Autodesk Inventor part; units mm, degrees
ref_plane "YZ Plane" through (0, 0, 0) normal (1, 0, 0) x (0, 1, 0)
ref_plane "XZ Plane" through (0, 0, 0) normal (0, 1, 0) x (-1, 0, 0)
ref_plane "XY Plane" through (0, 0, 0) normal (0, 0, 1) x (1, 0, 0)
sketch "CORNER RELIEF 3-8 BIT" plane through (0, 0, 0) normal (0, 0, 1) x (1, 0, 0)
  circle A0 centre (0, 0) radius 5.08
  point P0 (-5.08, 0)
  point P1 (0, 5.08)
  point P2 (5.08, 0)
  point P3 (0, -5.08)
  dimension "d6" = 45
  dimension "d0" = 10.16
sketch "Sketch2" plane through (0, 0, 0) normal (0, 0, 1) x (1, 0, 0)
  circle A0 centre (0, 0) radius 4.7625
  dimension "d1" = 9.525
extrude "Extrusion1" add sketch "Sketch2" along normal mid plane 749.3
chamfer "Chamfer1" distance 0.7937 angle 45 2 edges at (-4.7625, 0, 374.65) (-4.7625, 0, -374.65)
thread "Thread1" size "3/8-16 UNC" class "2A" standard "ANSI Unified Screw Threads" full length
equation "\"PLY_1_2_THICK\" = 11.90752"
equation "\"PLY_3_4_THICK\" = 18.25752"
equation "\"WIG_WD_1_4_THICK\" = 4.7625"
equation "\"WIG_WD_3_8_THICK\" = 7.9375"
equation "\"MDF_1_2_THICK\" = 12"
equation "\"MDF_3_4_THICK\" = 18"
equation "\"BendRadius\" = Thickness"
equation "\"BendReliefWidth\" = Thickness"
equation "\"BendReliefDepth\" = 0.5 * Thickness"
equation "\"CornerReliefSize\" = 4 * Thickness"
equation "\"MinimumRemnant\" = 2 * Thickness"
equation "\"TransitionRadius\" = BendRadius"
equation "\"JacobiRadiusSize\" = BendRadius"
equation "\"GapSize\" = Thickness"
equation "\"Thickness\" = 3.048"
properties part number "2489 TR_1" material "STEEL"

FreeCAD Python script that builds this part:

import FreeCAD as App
import Part
import Sketcher
from FreeCAD import Vector
Q = App.Units.Quantity


def edges_at(feature, points):
    """Names of the edges that pass closest to the given points."""
    edges = feature.Shape.Edges
    near = lambda p: min(range(len(edges)), key=lambda i: edges[i].distToShape(Part.Vertex(*p))[0])
    return sorted({f"Edge{near(p) + 1}" for p in points})

doc = App.newDocument("Part")
body = doc.addObject("PartDesign::Body", "Body")

# Sketch on XY plane
sketch1 = body.newObject("Sketcher::SketchObject", "Sketch")
sketch1.AttachmentSupport = (doc.getObject("XY_Plane"), [""])
sketch1.MapMode = "FlatFace"
sketch1.addGeometry(Part.Circle(Vector(0, 0, 0), Vector(0, 0, 1), 4.7625), False)
sketch1.addConstraint(Sketcher.Constraint("Coincident", 0, 3, -1, 1))
sketch1.addConstraint(Sketcher.Constraint("Diameter", 0, Q("0.375 in")))
pad1 = body.newObject("PartDesign::Pad", "Pad")
pad1.Profile = sketch1
pad1.Length = Q("29.5 in")
pad1.Midplane = True
doc.recompute()

chamfer = body.newObject("PartDesign::Chamfer", "Chamfer")
chamfer.Base = (pad1, edges_at(pad1, [(-4.763, 0, 374.65), (-4.763, 0, -374.65)]))
chamfer.Size = Q("0.031248 in")

doc.recompute()
